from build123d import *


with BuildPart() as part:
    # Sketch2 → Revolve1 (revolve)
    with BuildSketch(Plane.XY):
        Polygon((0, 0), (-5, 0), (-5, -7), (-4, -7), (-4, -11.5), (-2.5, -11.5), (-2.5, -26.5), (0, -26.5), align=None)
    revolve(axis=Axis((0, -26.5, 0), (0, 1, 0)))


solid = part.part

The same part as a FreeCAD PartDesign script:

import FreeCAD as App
import Part
import Sketcher

V = App.Vector

doc = App.newDocument("Part")
body = doc.addObject("PartDesign::Body", "Body")

sketch1 = doc.addObject("Sketcher::SketchObject", "Sketch")
body.addObject(sketch1)
sketch1.AttachmentSupport = (doc.XY_Plane, [""])
sketch1.MapMode = "FlatFace"
sketch1.addGeometry([
    Part.LineSegment(V(0, 0, 0), V(-5, 0, 0)),
    Part.LineSegment(V(-5, 0, 0), V(-5, -7, 0)),
    Part.LineSegment(V(-5, -7, 0), V(-4, -7, 0)),
    Part.LineSegment(V(-4, -7, 0), V(-4, -11.5, 0)),
    Part.LineSegment(V(-4, -11.5, 0), V(-2.5, -11.5, 0)),
    Part.LineSegment(V(-2.5, -11.5, 0), V(-2.5, -26.5, 0)),
    Part.LineSegment(V(-2.5, -26.5, 0), V(0, -26.5, 0)),
    Part.LineSegment(V(0, -26.5, 0), V(0, 0, 0)),
], False)
sketch1.addConstraint([
    Sketcher.Constraint("Coincident", 0, 2, 1, 1),
    Sketcher.Constraint("Coincident", 1, 2, 2, 1),
    Sketcher.Constraint("Coincident", 2, 2, 3, 1),
    Sketcher.Constraint("Coincident", 3, 2, 4, 1),
    Sketcher.Constraint("Coincident", 4, 2, 5, 1),
    Sketcher.Constraint("Coincident", 5, 2, 6, 1),
    Sketcher.Constraint("Coincident", 6, 2, 7, 1),
    Sketcher.Constraint("Coincident", 7, 2, 0, 1),
    Sketcher.Constraint("Horizontal", 0),
    Sketcher.Constraint("Vertical", 1),
    Sketcher.Constraint("Horizontal", 2),
    Sketcher.Constraint("Vertical", 3),
    Sketcher.Constraint("Horizontal", 4),
    Sketcher.Constraint("Vertical", 5),
    Sketcher.Constraint("Horizontal", 6),
    Sketcher.Constraint("Vertical", 7),
    Sketcher.Constraint("Coincident", 7, 2, -1, 1),
    Sketcher.Constraint("DistanceX", 0, 2, 0, 1, 5.0),
    Sketcher.Constraint("DistanceX", 2, 1, 2, 2, 1.0),
    Sketcher.Constraint("DistanceY", 1, 2, 1, 1, 7.0),
    Sketcher.Constraint("DistanceY", 5, 2, 5, 1, 15.0),
    Sketcher.Constraint("DistanceX", 4, 1, 4, 2, 1.5),
    Sketcher.Constraint("DistanceY", 3, 2, 3, 1, 4.5),
])
revolution = doc.addObject("PartDesign::Revolution", "Revolution")
body.addObject(revolution)
revolution.Profile = sketch1
revolution.ReferenceAxis = (sketch1, ["V_Axis"])
revolution.Angle = 360

doc.recompute()
